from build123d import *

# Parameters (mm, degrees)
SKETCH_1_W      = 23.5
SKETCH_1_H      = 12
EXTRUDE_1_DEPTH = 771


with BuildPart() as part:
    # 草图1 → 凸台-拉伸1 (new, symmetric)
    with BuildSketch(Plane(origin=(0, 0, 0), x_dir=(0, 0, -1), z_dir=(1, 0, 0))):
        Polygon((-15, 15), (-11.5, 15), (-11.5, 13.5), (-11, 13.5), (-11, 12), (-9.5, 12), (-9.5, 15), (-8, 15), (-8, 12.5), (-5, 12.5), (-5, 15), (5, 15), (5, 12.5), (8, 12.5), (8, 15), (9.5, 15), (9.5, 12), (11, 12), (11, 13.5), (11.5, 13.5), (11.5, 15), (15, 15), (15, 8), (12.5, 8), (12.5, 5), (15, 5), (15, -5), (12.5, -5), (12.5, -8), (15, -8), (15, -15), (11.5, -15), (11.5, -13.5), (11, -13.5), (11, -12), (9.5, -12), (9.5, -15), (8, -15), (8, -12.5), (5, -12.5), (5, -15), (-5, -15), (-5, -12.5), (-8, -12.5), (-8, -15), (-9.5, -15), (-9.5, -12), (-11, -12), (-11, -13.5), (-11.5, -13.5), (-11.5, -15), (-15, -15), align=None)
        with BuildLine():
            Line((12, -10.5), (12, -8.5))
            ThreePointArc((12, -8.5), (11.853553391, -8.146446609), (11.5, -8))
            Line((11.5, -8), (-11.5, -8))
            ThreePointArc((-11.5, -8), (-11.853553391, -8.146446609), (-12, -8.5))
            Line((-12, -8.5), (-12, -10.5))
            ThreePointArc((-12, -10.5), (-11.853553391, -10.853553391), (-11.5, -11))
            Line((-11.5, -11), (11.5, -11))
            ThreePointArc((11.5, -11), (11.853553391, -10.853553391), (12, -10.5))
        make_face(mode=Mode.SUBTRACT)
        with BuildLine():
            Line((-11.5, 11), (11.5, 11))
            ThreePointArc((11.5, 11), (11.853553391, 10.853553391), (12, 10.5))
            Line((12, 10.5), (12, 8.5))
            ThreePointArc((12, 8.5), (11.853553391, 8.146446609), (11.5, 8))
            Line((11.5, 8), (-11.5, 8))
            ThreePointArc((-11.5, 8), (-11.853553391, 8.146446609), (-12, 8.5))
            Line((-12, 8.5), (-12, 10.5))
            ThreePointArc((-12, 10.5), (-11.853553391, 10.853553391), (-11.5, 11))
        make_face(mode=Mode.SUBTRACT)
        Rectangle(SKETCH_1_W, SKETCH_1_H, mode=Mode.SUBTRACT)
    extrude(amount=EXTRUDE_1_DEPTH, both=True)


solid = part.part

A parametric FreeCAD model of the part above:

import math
import FreeCAD as App
import Part
import Sketcher

V = App.Vector
Q = App.Units.Quantity


def add_polygon(sketch, points):
    """Adds a closed chain of lines whose ends are joined by coincident constraints."""
    first, n = sketch.GeometryCount, len(points)
    for a, b in zip(points, points[1:] + points[:1]):
        sketch.addGeometry(Part.LineSegment(App.Vector(*a, 0), App.Vector(*b, 0)), False)
    for i in range(n):
        sketch.addConstraint(Sketcher.Constraint("Coincident", first + i, 2, first + (i + 1) % n, 1))

doc = App.newDocument("Part")
body = doc.addObject("PartDesign::Body", "Body")

# Sketch on YZ plane
sketch1 = body.newObject("Sketcher::SketchObject", "Sketch")
sketch1.AttachmentSupport = (doc.getObject("YZ_Plane"), [""])
sketch1.MapMode = "FlatFace"
add_polygon(sketch1, [(15, 11.5), (15, 15), (-15, 15), (-15, 11.5), (-13.5, 11.5), (-13.5, 11), (-12, 11), (-12, 9.5), (-15, 9.5), (-15, 8), (-12.5, 8), (-12.5, 5), (-15, 5), (-15, -5), (-12.5, -5), (-12.5, -8), (-15, -8), (-15, -9.5), (-12, -9.5), (-12, -11), (-13.5, -11), (-13.5, -11.5), (-15, -11.5), (-15, -15), (-8, -15), (-8, -12.5), (-5, -12.5), (-5, -15), (5, -15), (5, -12.5), (8, -12.5), (8, -15), (15, -15), (15, -11.5), (13.5, -11.5), (13.5, -11), (12, -11), (12, -9.5), (15, -9.5), (15, -8), (12.5, -8), (12.5, -5), (15, -5), (15, 5), (12.5, 5), (12.5, 8), (15, 8), (15, 9.5), (12, 9.5), (12, 11), (13.5, 11), (13.5, 11.5)])  # lines 0-51
sketch1.addGeometry(Part.ArcOfCircle(Part.Circle(V(-10.5, -11.5, 0), V(0, 0, 1), 0.5), math.radians(180), math.radians(270)), False)  # 52
sketch1.addGeometry(Part.LineSegment(V(-11, -11.5, 0), V(-11, 11.5, 0)), False)  # 53
sketch1.addGeometry(Part.ArcOfCircle(Part.Circle(V(-10.5, 11.5, 0), V(0, 0, 1), 0.5), math.radians(90), math.radians(180)), False)  # 54
sketch1.addGeometry(Part.LineSegment(V(-10.5, 12, 0), V(-8.5, 12, 0)), False)  # 55
sketch1.addGeometry(Part.ArcOfCircle(Part.Circle(V(-8.5, 11.5, 0), V(0, 0, 1), 0.5), math.radians(0), math.radians(90)), False)  # 56
sketch1.addGeometry(Part.LineSegment(V(-8, 11.5, 0), V(-8, -11.5, 0)), False)  # 57
sketch1.addGeometry(Part.ArcOfCircle(Part.Circle(V(-8.5, -11.5, 0), V(0, 0, 1), 0.5), math.radians(-90), math.radians(0)), False)  # 58
sketch1.addGeometry(Part.LineSegment(V(-8.5, -12, 0), V(-10.5, -12, 0)), False)  # 59
add_polygon(sketch1, [(-6, 11.75), (6, 11.75), (6, -11.75), (-6, -11.75)])  # lines 60-63
sketch1.addGeometry(Part.LineSegment(V(11, 11.5, 0), V(11, -11.5, 0)), False)  # 64
sketch1.addGeometry(Part.ArcOfCircle(Part.Circle(V(10.5, -11.5, 0), V(0, 0, 1), 0.5), math.radians(-90), math.radians(0)), False)  # 65
sketch1.addGeometry(Part.LineSegment(V(10.5, -12, 0), V(8.5, -12, 0)), False)  # 66
sketch1.addGeometry(Part.ArcOfCircle(Part.Circle(V(8.5, -11.5, 0), V(0, 0, 1), 0.5), math.radians(180), math.radians(270)), False)  # 67
sketch1.addGeometry(Part.LineSegment(V(8, -11.5, 0), V(8, 11.5, 0)), False)  # 68
sketch1.addGeometry(Part.ArcOfCircle(Part.Circle(V(8.5, 11.5, 0), V(0, 0, 1), 0.5), math.radians(90), math.radians(180)), False)  # 69
sketch1.addGeometry(Part.LineSegment(V(8.5, 12, 0), V(10.5, 12, 0)), False)  # 70
sketch1.addGeometry(Part.ArcOfCircle(Part.Circle(V(10.5, 11.5, 0), V(0, 0, 1), 0.5), math.radians(0), math.radians(90)), False)  # 71
sketch1.addConstraint(Sketcher.Constraint("Tangent", 52, 1, 53, 1))
sketch1.addConstraint(Sketcher.Constraint("Tangent", 53, 2, 54, 2))
sketch1.addConstraint(Sketcher.Constraint("Tangent", 54, 1, 55, 1))
sketch1.addConstraint(Sketcher.Constraint("Tangent", 55, 2, 56, 2))
sketch1.addConstraint(Sketcher.Constraint("Tangent", 56, 1, 57, 1))
sketch1.addConstraint(Sketcher.Constraint("Tangent", 57, 2, 58, 2))
sketch1.addConstraint(Sketcher.Constraint("Tangent", 58, 1, 59, 1))
sketch1.addConstraint(Sketcher.Constraint("Tangent", 59, 2, 52, 2))
sketch1.addConstraint(Sketcher.Constraint("Tangent", 64, 2, 65, 2))
sketch1.addConstraint(Sketcher.Constraint("Tangent", 65, 1, 66, 1))
sketch1.addConstraint(Sketcher.Constraint("Tangent", 66, 2, 67, 2))
sketch1.addConstraint(Sketcher.Constraint("Tangent", 67, 1, 68, 1))
sketch1.addConstraint(Sketcher.Constraint("Tangent", 68, 2, 69, 2))
sketch1.addConstraint(Sketcher.Constraint("Tangent", 69, 1, 70, 1))
sketch1.addConstraint(Sketcher.Constraint("Tangent", 70, 2, 71, 2))
sketch1.addConstraint(Sketcher.Constraint("Tangent", 71, 1, 64, 1))
sketch1.addConstraint(Sketcher.Constraint("Vertical", 0))
sketch1.addConstraint(Sketcher.Constraint("Horizontal", 1))
sketch1.addConstraint(Sketcher.Constraint("Vertical", 2))
sketch1.addConstraint(Sketcher.Constraint("Horizontal", 3))
sketch1.addConstraint(Sketcher.Constraint("Vertical", 4))
sketch1.addConstraint(Sketcher.Constraint("Horizontal", 5))
sketch1.addConstraint(Sketcher.Constraint("Vertical", 6))
sketch1.addConstraint(Sketcher.Constraint("Horizontal", 7))
sketch1.addConstraint(Sketcher.Constraint("Vertical", 8))
sketch1.addConstraint(Sketcher.Constraint("Horizontal", 9))
sketch1.addConstraint(Sketcher.Constraint("Vertical", 10))
sketch1.addConstraint(Sketcher.Constraint("Horizontal", 11))
sketch1.addConstraint(Sketcher.Constraint("Vertical", 12))
sketch1.addConstraint(Sketcher.Constraint("Horizontal", 13))
sketch1.addConstraint(Sketcher.Constraint("Vertical", 14))
sketch1.addConstraint(Sketcher.Constraint("Horizontal", 15))
sketch1.addConstraint(Sketcher.Constraint("Vertical", 16))
sketch1.addConstraint(Sketcher.Constraint("Horizontal", 17))
sketch1.addConstraint(Sketcher.Constraint("Vertical", 18))
sketch1.addConstraint(Sketcher.Constraint("Horizontal", 19))
sketch1.addConstraint(Sketcher.Constraint("Vertical", 20))
sketch1.addConstraint(Sketcher.Constraint("Horizontal", 21))
sketch1.addConstraint(Sketcher.Constraint("Vertical", 22))
sketch1.addConstraint(Sketcher.Constraint("Horizontal", 23))
sketch1.addConstraint(Sketcher.Constraint("Vertical", 24))
sketch1.addConstraint(Sketcher.Constraint("Horizontal", 25))
sketch1.addConstraint(Sketcher.Constraint("Vertical", 26))
sketch1.addConstraint(Sketcher.Constraint("Horizontal", 27))
sketch1.addConstraint(Sketcher.Constraint("Vertical", 28))
sketch1.addConstraint(Sketcher.Constraint("Horizontal", 29))
sketch1.addConstraint(Sketcher.Constraint("Vertical", 30))
sketch1.addConstraint(Sketcher.Constraint("Horizontal", 31))
sketch1.addConstraint(Sketcher.Constraint("Vertical", 32))
sketch1.addConstraint(Sketcher.Constraint("Horizontal", 33))
sketch1.addConstraint(Sketcher.Constraint("Vertical", 34))
sketch1.addConstraint(Sketcher.Constraint("Horizontal", 35))
sketch1.addConstraint(Sketcher.Constraint("Vertical", 36))
sketch1.addConstraint(Sketcher.Constraint("Horizontal", 37))
sketch1.addConstraint(Sketcher.Constraint("Vertical", 38))
sketch1.addConstraint(Sketcher.Constraint("Horizontal", 39))
sketch1.addConstraint(Sketcher.Constraint("Vertical", 40))
sketch1.addConstraint(Sketcher.Constraint("Horizontal", 41))
sketch1.addConstraint(Sketcher.Constraint("Vertical", 42))
sketch1.addConstraint(Sketcher.Constraint("Horizontal", 43))
sketch1.addConstraint(Sketcher.Constraint("Vertical", 44))
sketch1.addConstraint(Sketcher.Constraint("Horizontal", 45))
sketch1.addConstraint(Sketcher.Constraint("Vertical", 46))
sketch1.addConstraint(Sketcher.Constraint("Horizontal", 47))
sketch1.addConstraint(Sketcher.Constraint("Vertical", 48))
sketch1.addConstraint(Sketcher.Constraint("Horizontal", 49))
sketch1.addConstraint(Sketcher.Constraint("Vertical", 50))
sketch1.addConstraint(Sketcher.Constraint("Horizontal", 51))
sketch1.addConstraint(Sketcher.Constraint("Vertical", 53))
sketch1.addConstraint(Sketcher.Constraint("Horizontal", 55))
sketch1.addConstraint(Sketcher.Constraint("Vertical", 57))
sketch1.addConstraint(Sketcher.Constraint("Horizontal", 59))
sketch1.addConstraint(Sketcher.Constraint("Horizontal", 60))
sketch1.addConstraint(Sketcher.Constraint("Vertical", 61))
sketch1.addConstraint(Sketcher.Constraint("Horizontal", 62))
sketch1.addConstraint(Sketcher.Constraint("Vertical", 63))
sketch1.addConstraint(Sketcher.Constraint("Vertical", 64))
sketch1.addConstraint(Sketcher.Constraint("Horizontal", 66))
sketch1.addConstraint(Sketcher.Constraint("Vertical", 68))
sketch1.addConstraint(Sketcher.Constraint("Horizontal", 70))
sketch1.addConstraint(Sketcher.Constraint("Equal", 52, 54))
sketch1.addConstraint(Sketcher.Constraint("Equal", 54, 56))
sketch1.addConstraint(Sketcher.Constraint("Equal", 56, 58))
sketch1.addConstraint(Sketcher.Constraint("Equal", 58, 65))
sketch1.addConstraint(Sketcher.Constraint("Equal", 65, 67))
sketch1.addConstraint(Sketcher.Constraint("Equal", 67, 69))
sketch1.addConstraint(Sketcher.Constraint("Equal", 69, 71))
sketch1.addConstraint(Sketcher.Constraint("Symmetric", 54, 3, 65, 3, -1, 1))
sketch1.addConstraint(Sketcher.Constraint("Symmetric", 58, 3, 69, 3, -1, 1))
sketch1.addConstraint(Sketcher.Constraint("Symmetric", 0, 2, 22, 2, -1, 1))
sketch1.addConstraint(Sketcher.Constraint("Symmetric", 1, 2, 31, 2, -1, 1))
sketch1.addConstraint(Sketcher.Constraint("Symmetric", 3, 2, 33, 2, -1, 1))
sketch1.addConstraint(Sketcher.Constraint("Symmetric", 5, 2, 35, 2, -1, 1))
sketch1.addConstraint(Sketcher.Constraint("Symmetric", 7, 2, 37, 2, -1, 1))
sketch1.addConstraint(Sketcher.Constraint("Symmetric", 9, 2, 39, 2, -1, 1))
sketch1.addConstraint(Sketcher.Constraint("Symmetric", 11, 2, 41, 2, -1, 1))
sketch1.addConstraint(Sketcher.Constraint("Symmetric", 13, 2, 43, 2, -1, 1))
sketch1.addConstraint(Sketcher.Constraint("Symmetric", 15, 2, 45, 2, -1, 1))
sketch1.addConstraint(Sketcher.Constraint("Symmetric", 17, 2, 47, 2, -1, 1))
sketch1.addConstraint(Sketcher.Constraint("Symmetric", 19, 2, 49, 2, -1, 1))
sketch1.addConstraint(Sketcher.Constraint("Symmetric", 60, 2, 62, 2, -1, 1))
sketch1.addConstraint(Sketcher.Constraint("Symmetric", 25, 2, 28, 2, -2))
sketch1.addConstraint(Sketcher.Constraint("Symmetric", 21, 2, 32, 2, -2))
sketch1.addConstraint(Sketcher.Constraint("Symmetric", 19, 2, 34, 2, -2))
sketch1.addConstraint(Sketcher.Constraint("Symmetric", 17, 2, 36, 2, -2))
sketch1.addConstraint(Sketcher.Constraint("Symmetric", 15, 2, 38, 2, -2))
sketch1.addConstraint(Sketcher.Constraint("Symmetric", 13, 2, 40, 2, -2))
sketch1.addConstraint(Sketcher.Constraint("Horizontal", 58, 3, 65, 3))
sketch1.addConstraint(Sketcher.Constraint("Horizontal", 71, 3, 2, 2))
sketch1.addConstraint(Sketcher.Constraint("Horizontal", 23, 2, 26, 2))
sketch1.addConstraint(Sketcher.Constraint("Horizontal", 3, 2, 50, 2))
sketch1.addConstraint(Sketcher.Constraint("Vertical", 2, 2, 7, 2))
sketch1.addConstraint(Sketcher.Constraint("Vertical", 8, 2, 11, 2))
sketch1.addConstraint(Sketcher.Constraint("Vertical", 24, 2, 56, 1))
sketch1.addConstraint(Sketcher.Constraint("Vertical", 30, 2, 67, 1))
sketch1.addConstraint(Sketcher.Constraint("Equal", 3, 5))
sketch1.addConstraint(Sketcher.Constraint("Equal", 17, 25))
sketch1.addConstraint(Sketcher.Constraint("Equal", 51, 6))
sketch1.addConstraint(Sketcher.Constraint("Equal", 6, 8))
sketch1.addConstraint(Sketcher.Constraint("Equal", 47, 10))
sketch1.addConstraint(Sketcher.Constraint("Equal", 27, 12))
sketch1.addConstraint(Sketcher.Constraint("Equal", 45, 24))
sketch1.addConstraint(Sketcher.Constraint("Radius", 52, Q("0.5 mm")))
sketch1.addConstraint(Sketcher.Constraint("DistanceX", 1, 2, 1, 1, Q("30 mm")))
sketch1.addConstraint(Sketcher.Constraint("DistanceX", 7, 2, 7, 1, Q("3 mm")))
sketch1.addConstraint(Sketcher.Constraint("DistanceX", 23, 1, 23, 2, Q("7 mm")))
sketch1.addConstraint(Sketcher.Constraint("DistanceX", 55, 1, 55, 2, Q("2 mm")))
sketch1.addConstraint(Sketcher.Constraint("DistanceX", 60, 1, 60, 2, Q("12 mm")))
sketch1.addConstraint(Sketcher.Constraint("DistanceY", 53, 1, 53, 2, Q("23 mm")))
sketch1.addConstraint(Sketcher.Constraint("DistanceX", 9, 1, 9, 2, Q("2.5 mm")))
sketch1.addConstraint(Sketcher.Constraint("DistanceY", 0, 1, 0, 2, Q("3.5 mm")))
sketch1.addConstraint(Sketcher.Constraint("DistanceY", 61, 2, 61, 1, Q("23.5 mm")))
pad1 = body.newObject("PartDesign::Pad", "Pad")
pad1.Profile = sketch1
pad1.Length = 1542
pad1.Midplane = True

doc.recompute()
